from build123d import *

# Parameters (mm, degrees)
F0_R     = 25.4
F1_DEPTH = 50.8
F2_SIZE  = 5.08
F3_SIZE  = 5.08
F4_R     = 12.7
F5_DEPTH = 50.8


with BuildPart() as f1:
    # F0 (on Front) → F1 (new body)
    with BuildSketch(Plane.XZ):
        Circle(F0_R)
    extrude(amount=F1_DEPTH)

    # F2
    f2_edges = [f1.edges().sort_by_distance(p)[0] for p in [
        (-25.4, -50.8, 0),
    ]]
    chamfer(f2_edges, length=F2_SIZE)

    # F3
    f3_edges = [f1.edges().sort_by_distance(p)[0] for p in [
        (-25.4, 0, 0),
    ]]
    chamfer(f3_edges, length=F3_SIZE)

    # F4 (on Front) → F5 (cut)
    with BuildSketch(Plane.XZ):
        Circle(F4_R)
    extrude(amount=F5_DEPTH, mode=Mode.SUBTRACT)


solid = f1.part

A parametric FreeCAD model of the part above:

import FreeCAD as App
import Part
import Sketcher

V = App.Vector
Q = App.Units.Quantity


def edges_at(feature, points):
    """Names of the edges that pass closest to the given points."""
    edges = feature.Shape.Edges
    near = lambda p: min(range(len(edges)), key=lambda i: edges[i].distToShape(Part.Vertex(*p))[0])
    return sorted({f"Edge{near(p) + 1}" for p in points})

doc = App.newDocument("Part")
body = doc.addObject("PartDesign::Body", "Body")

# Sketch on XZ plane
sketch1 = body.newObject("Sketcher::SketchObject", "Sketch")
sketch1.AttachmentSupport = (doc.getObject("XZ_Plane"), [""])
sketch1.MapMode = "FlatFace"
sketch1.addGeometry(Part.Circle(V(0, 0, 0), V(0, 0, 1), 25), False)
sketch1.addConstraint(Sketcher.Constraint("Coincident", 0, 3, -1, 1))
sketch1.addConstraint(Sketcher.Constraint("Diameter", 0, Q("2 in")))
pad1 = body.newObject("PartDesign::Pad", "Pad")
pad1.Profile = sketch1
pad1.Length = Q("2 in")
doc.recompute()

chamfer = body.newObject("PartDesign::Chamfer", "Chamfer")
chamfer.Base = (pad1, edges_at(pad1, [(-25.4, -50.8, 0)]))
chamfer.Size = Q("0.2 in")
doc.recompute()

chamfer2 = body.newObject("PartDesign::Chamfer", "Chamfer001")
chamfer2.Base = (chamfer, edges_at(chamfer, [(-25.4, 0, 0)]))
chamfer2.Size = Q("0.2 in")

# Sketch on XZ plane
sketch2 = body.newObject("Sketcher::SketchObject", "Sketch001")
sketch2.AttachmentSupport = (doc.getObject("XZ_Plane"), [""])
sketch2.MapMode = "FlatFace"
sketch2.addGeometry(Part.Circle(V(0, 0, 0), V(0, 0, 1), 13), False)
sketch2.addConstraint(Sketcher.Constraint("Coincident", 0, 3, -1, 1))
sketch2.addConstraint(Sketcher.Constraint("Diameter", 0, Q("1 in")))
pocket1 = body.newObject("PartDesign::Pocket", "Pocket")
pocket1.Profile = sketch2
pocket1.Length = Q("2 in")
pocket1.Reversed = True

doc.recompute()
